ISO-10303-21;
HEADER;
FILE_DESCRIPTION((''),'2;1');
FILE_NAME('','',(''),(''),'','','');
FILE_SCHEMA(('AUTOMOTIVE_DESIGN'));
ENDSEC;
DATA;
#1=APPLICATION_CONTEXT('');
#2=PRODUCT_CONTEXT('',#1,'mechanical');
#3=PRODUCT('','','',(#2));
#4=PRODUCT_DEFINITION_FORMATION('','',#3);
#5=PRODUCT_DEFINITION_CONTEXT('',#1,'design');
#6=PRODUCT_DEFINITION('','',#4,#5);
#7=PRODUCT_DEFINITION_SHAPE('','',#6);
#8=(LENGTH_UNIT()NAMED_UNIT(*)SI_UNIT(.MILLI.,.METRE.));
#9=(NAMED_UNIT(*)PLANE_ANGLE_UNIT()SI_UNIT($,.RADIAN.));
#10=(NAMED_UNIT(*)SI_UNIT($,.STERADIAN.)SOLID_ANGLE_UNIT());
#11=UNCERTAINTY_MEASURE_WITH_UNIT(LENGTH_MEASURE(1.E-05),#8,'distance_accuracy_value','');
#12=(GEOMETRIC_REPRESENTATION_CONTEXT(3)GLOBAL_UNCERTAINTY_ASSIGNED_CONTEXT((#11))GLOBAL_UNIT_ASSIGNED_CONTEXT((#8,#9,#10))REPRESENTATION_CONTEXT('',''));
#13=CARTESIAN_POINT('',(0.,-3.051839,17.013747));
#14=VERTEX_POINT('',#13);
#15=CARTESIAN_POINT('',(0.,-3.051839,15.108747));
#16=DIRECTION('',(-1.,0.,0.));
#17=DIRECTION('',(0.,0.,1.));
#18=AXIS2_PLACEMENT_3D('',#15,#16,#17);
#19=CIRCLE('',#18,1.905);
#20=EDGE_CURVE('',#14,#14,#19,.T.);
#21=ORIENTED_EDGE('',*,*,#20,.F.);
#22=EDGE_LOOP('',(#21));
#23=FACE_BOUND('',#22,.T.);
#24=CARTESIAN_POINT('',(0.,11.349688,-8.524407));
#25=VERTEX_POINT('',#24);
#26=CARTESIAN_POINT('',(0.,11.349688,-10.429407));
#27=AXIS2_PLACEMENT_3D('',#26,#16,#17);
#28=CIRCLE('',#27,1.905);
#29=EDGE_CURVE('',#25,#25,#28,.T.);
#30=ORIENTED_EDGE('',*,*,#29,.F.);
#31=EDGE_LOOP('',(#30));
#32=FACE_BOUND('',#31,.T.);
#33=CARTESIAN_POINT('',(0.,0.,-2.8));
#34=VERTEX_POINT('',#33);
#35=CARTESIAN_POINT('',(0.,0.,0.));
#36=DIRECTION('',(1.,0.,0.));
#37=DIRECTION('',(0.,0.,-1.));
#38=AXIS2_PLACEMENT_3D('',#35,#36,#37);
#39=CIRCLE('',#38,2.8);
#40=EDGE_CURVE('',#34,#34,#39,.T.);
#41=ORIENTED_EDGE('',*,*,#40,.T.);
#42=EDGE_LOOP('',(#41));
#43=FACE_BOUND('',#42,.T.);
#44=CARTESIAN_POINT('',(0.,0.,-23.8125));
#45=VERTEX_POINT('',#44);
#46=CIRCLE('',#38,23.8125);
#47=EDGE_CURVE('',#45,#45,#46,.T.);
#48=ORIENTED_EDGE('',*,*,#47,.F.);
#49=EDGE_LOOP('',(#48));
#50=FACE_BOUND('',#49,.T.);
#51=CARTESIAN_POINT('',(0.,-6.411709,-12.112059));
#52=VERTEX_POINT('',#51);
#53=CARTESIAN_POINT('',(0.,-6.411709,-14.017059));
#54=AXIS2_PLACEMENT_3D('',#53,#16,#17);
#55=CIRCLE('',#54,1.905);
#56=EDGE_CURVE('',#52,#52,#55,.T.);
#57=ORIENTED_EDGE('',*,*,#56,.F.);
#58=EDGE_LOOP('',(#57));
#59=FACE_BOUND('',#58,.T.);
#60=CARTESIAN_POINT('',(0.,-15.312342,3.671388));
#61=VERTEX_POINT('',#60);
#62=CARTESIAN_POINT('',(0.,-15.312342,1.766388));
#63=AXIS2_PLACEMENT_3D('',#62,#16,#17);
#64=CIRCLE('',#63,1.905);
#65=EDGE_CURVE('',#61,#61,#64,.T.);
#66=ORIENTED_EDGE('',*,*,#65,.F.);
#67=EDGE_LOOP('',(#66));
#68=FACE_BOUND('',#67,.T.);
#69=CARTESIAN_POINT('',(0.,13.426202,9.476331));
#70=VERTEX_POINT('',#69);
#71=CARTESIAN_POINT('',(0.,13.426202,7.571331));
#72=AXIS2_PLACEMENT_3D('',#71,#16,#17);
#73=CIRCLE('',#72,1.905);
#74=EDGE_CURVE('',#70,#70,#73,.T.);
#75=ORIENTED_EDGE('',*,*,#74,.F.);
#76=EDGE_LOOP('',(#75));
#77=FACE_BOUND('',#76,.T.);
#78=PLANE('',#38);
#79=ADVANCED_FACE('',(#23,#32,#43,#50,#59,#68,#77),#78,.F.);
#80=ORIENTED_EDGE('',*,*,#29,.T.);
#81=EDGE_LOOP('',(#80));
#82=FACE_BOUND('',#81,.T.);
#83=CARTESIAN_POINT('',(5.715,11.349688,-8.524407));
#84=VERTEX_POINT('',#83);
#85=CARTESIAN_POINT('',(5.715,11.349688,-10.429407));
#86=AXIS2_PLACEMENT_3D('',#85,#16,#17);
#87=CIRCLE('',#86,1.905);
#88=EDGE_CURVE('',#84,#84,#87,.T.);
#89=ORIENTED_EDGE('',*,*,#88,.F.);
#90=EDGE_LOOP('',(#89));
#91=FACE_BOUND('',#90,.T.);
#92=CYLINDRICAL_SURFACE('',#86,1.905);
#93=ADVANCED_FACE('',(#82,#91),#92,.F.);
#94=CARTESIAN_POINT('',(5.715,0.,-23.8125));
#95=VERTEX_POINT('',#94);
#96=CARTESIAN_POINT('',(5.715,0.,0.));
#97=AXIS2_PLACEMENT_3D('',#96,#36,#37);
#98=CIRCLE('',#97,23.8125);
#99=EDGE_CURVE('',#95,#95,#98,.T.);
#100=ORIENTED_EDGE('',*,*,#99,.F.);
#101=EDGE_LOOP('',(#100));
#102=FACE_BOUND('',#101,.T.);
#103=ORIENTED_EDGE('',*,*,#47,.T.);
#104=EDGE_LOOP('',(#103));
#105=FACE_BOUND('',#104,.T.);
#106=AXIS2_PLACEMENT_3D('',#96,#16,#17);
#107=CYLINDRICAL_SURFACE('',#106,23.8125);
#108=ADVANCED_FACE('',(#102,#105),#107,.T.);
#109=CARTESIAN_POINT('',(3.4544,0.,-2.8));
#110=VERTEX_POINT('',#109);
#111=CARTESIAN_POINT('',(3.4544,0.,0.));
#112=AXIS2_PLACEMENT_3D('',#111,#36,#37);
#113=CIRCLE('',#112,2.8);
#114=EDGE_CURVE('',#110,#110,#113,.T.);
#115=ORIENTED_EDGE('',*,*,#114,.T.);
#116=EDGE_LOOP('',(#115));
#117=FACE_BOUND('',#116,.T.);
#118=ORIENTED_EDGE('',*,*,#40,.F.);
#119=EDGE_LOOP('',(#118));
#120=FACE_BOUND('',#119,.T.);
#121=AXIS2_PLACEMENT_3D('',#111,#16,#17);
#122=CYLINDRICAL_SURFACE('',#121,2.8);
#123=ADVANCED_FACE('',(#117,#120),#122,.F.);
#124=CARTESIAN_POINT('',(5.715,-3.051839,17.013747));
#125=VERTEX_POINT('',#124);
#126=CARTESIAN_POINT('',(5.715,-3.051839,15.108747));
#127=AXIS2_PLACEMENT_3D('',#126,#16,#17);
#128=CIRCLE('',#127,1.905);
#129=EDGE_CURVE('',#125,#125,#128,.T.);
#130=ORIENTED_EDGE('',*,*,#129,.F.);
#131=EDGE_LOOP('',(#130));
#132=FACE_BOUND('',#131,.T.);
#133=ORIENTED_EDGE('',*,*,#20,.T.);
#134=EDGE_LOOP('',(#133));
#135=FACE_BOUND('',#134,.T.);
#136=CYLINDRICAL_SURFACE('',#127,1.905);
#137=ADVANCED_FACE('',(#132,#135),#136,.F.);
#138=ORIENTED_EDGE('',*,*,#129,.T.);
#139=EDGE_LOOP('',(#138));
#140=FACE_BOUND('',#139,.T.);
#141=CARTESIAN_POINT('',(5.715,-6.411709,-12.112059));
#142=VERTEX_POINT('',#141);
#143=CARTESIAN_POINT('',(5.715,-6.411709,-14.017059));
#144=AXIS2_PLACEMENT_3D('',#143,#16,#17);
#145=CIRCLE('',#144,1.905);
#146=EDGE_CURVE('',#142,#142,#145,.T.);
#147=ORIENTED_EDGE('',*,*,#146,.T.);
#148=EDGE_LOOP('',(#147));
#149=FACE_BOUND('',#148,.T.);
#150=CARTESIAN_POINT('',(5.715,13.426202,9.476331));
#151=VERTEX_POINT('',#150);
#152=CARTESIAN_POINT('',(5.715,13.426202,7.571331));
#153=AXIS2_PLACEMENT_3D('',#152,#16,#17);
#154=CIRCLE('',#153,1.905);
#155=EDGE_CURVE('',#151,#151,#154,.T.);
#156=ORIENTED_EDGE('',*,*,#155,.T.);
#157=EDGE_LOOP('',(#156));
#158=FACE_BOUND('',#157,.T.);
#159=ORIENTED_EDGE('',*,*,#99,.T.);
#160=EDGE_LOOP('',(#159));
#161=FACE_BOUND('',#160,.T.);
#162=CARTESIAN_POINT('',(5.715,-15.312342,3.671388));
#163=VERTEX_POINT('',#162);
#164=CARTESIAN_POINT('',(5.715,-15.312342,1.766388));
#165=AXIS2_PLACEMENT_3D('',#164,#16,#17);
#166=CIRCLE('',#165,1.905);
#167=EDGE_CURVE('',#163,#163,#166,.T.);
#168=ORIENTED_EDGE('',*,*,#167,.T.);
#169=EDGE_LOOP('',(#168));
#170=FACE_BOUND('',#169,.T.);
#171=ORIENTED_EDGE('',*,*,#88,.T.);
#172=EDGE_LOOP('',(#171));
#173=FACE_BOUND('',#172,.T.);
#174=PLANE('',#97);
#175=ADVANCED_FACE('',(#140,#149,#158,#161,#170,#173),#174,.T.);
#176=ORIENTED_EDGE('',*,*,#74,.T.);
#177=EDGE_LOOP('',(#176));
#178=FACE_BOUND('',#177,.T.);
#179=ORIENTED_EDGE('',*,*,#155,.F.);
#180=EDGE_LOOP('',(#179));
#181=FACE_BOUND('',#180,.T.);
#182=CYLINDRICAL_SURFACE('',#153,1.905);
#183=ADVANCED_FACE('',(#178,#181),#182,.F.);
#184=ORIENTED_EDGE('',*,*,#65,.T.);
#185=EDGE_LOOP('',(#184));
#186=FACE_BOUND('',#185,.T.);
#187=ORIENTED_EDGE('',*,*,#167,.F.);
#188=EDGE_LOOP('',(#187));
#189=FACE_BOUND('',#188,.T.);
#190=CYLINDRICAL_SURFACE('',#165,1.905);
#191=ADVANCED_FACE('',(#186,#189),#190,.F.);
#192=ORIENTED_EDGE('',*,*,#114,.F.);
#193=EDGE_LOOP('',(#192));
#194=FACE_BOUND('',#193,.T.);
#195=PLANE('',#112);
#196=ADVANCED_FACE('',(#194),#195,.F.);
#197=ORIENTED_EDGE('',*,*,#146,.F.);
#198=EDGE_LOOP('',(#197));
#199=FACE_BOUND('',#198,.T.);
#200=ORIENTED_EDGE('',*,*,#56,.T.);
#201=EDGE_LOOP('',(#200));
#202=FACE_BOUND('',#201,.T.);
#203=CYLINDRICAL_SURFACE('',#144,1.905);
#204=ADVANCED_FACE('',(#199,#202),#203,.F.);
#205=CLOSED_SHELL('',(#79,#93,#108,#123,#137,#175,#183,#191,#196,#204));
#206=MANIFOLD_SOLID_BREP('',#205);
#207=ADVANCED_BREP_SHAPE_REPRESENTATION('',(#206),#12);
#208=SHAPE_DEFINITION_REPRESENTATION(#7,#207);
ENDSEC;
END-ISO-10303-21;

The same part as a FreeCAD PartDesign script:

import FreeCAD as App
import Part
import Sketcher

V = App.Vector
Q = App.Units.Quantity

doc = App.newDocument("Part")
params = doc.addObject("Spreadsheet::Sheet", "Params")
for row, (alias, value) in enumerate([
    ("sketch1_diameter", "1.875 in"),
    ("pad1_length", "0.225 in"),
    ("pocket1_length", "0.136 in"),
    ("sketch3_diameter", "0.15 in"),
], start=1):
    params.set(f"A{row}", alias)
    params.set(f"B{row}", "=" + value)
    params.setAlias(f"B{row}", alias)

body = doc.addObject("PartDesign::Body", "Body")

# Sketch on YZ plane
sketch1 = body.newObject("Sketcher::SketchObject", "Sketch")
sketch1.AttachmentSupport = (doc.getObject("YZ_Plane"), [""])
sketch1.MapMode = "FlatFace"
sketch1.addGeometry(Part.Circle(V(0, 0, 0), V(0, 0, 1), 23.8125), False)
sketch1.addConstraint([
    Sketcher.Constraint("Coincident", 0, 3, -1, 1),
    Sketcher.Constraint("Diameter", 0, Q("1.875 in")),
])
sketch1.setExpression("Constraints[1]", "Params.sketch1_diameter")
pad1 = body.newObject("PartDesign::Pad", "Pad")
pad1.Profile = sketch1
pad1.setExpression("Length", "Params.pad1_length")

# Sketch on YZ plane
sketch2 = body.newObject("Sketcher::SketchObject", "Sketch001")
sketch2.AttachmentSupport = (doc.getObject("YZ_Plane"), [""])
sketch2.MapMode = "FlatFace"
sketch2.addGeometry(Part.Circle(V(0, 0, 0), V(0, 0, 1), 2.8), False)
sketch2.addConstraint([
    Sketcher.Constraint("Coincident", 0, 3, -1, 1),
    Sketcher.Constraint("Diameter", 0, Q("5.6 mm")),
])
pocket1 = body.newObject("PartDesign::Pocket", "Pocket")
pocket1.Profile = sketch2
pocket1.setExpression("Length", "Params.pocket1_length")
pocket1.Reversed = True

# Sketch on YZ plane
sketch3 = body.newObject("Sketcher::SketchObject", "Sketch002")
sketch3.AttachmentSupport = (doc.getObject("YZ_Plane"), [""])
sketch3.MapMode = "FlatFace"
sketch3.addGeometry([
    Part.Circle(V(11.349688, -10.429407, 0), V(0, 0, 1), 1.905),  # 0
    Part.Circle(V(13.426202, 7.571331, 0), V(0, 0, 1), 1.905),  # 1
    Part.Circle(V(-3.051839, 15.108747, 0), V(0, 0, 1), 1.905),  # 2
    Part.Circle(V(-15.312342, 1.766388, 0), V(0, 0, 1), 1.905),  # 3
    Part.Circle(V(-6.411709, -14.017059, 0), V(0, 0, 1), 1.905),  # 4
], False)
sketch3.addConstraint([
    Sketcher.Constraint("Equal", 0, 1),
    Sketcher.Constraint("Equal", 1, 2),
    Sketcher.Constraint("Equal", 2, 3),
    Sketcher.Constraint("Equal", 3, 4),
    Sketcher.Constraint("Diameter", 0, Q("0.15 in")),
    Sketcher.Constraint("DistanceX", -1, 1, 1, 3, Q("13.426202 mm")),
    Sketcher.Constraint("DistanceX", -1, 1, 0, 3, Q("11.349688 mm")),
    Sketcher.Constraint("DistanceY", -1, 1, 1, 3, Q("7.571331 mm")),
    Sketcher.Constraint("DistanceX", 2, 3, -1, 1, Q("3.051839 mm")),
    Sketcher.Constraint("DistanceX", 4, 3, -1, 1, Q("6.411709 mm")),
    Sketcher.Constraint("DistanceY", 4, 3, -1, 1, Q("14.017059 mm")),
    Sketcher.Constraint("DistanceY", 3, 3, 2, 3, Q("13.342359 mm")),
    Sketcher.Constraint("DistanceX", 3, 3, 0, 3, Q("26.662031 mm")),
    Sketcher.Constraint("DistanceY", 0, 3, -1, 1, Q("10.429407 mm")),
    Sketcher.Constraint("DistanceY", -1, 1, 2, 3, Q("15.108747 mm")),
])
sketch3.setExpression("Constraints[4]", "Params.sketch3_diameter")
pocket2 = body.newObject("PartDesign::Pocket", "Pocket001")
pocket2.Profile = sketch3
pocket2.Type = "ThroughAll"
pocket2.Reversed = True

doc.recompute()
